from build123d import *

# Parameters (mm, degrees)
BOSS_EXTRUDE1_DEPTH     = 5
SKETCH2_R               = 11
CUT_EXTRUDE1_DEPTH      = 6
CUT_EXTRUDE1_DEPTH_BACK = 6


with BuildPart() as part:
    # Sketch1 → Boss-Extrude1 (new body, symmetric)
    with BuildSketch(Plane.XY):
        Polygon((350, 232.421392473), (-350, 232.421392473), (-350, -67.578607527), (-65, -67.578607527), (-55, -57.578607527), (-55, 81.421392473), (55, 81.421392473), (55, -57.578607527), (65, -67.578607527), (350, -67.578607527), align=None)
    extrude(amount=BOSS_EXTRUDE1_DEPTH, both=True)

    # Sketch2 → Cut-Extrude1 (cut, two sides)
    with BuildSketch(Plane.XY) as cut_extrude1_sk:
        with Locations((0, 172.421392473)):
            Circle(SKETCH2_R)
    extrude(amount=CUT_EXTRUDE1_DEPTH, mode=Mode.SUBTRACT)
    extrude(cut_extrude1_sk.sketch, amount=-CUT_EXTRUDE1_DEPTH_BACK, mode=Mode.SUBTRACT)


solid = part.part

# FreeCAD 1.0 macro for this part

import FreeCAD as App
import Part
import Sketcher
Q = App.Units.Quantity

doc = App.newDocument("Part")
body = doc.addObject("PartDesign::Body", "Body")

# Sketch on XY plane
sketch1 = body.newObject("Sketcher::SketchObject", "Sketch")
sketch1.AttachmentSupport = (doc.getObject("XY_Plane"), [""])
sketch1.MapMode = "FlatFace"
sketch1.addGeometry([
    Part.LineSegment(App.Vector(350, 232.421392, 0), App.Vector(-350, 232.421392, 0)),  # 0
    Part.LineSegment(App.Vector(-350, 232.421392, 0), App.Vector(-350, -67.578608, 0)),  # 1
    Part.LineSegment(App.Vector(-350, -67.578608, 0), App.Vector(-65, -67.578608, 0)),  # 2
    Part.LineSegment(App.Vector(-65, -67.578608, 0), App.Vector(-55, -57.578608, 0)),  # 3
    Part.LineSegment(App.Vector(-55, -57.578608, 0), App.Vector(-55, 81.421392, 0)),  # 4
    Part.LineSegment(App.Vector(-55, 81.421392, 0), App.Vector(55, 81.421392, 0)),  # 5
    Part.LineSegment(App.Vector(55, 81.421392, 0), App.Vector(55, -57.578608, 0)),  # 6
    Part.LineSegment(App.Vector(55, -57.578608, 0), App.Vector(65, -67.578608, 0)),  # 7
    Part.LineSegment(App.Vector(65, -67.578608, 0), App.Vector(350, -67.578608, 0)),  # 8
    Part.LineSegment(App.Vector(350, -67.578608, 0), App.Vector(350, 232.421392, 0)),  # 9
], False)
sketch1.addConstraint([
    Sketcher.Constraint("Coincident", 0, 2, 1, 1),
    Sketcher.Constraint("Coincident", 1, 2, 2, 1),
    Sketcher.Constraint("Coincident", 2, 2, 3, 1),
    Sketcher.Constraint("Coincident", 3, 2, 4, 1),
    Sketcher.Constraint("Coincident", 4, 2, 5, 1),
    Sketcher.Constraint("Coincident", 5, 2, 6, 1),
    Sketcher.Constraint("Coincident", 6, 2, 7, 1),
    Sketcher.Constraint("Coincident", 7, 2, 8, 1),
    Sketcher.Constraint("Coincident", 8, 2, 9, 1),
    Sketcher.Constraint("Coincident", 9, 2, 0, 1),
    Sketcher.Constraint("Horizontal", 0),
    Sketcher.Constraint("Vertical", 1),
    Sketcher.Constraint("Horizontal", 2),
    Sketcher.Constraint("Vertical", 4),
    Sketcher.Constraint("Horizontal", 5),
    Sketcher.Constraint("Vertical", 6),
    Sketcher.Constraint("Horizontal", 8),
    Sketcher.Constraint("Vertical", 9),
    Sketcher.Constraint("Symmetric", 3, 2, 6, 2, -2),
    Sketcher.Constraint("Symmetric", 2, 2, 7, 2, -2),
    Sketcher.Constraint("Perpendicular", 3, 7),
    Sketcher.Constraint("Equal", 2, 8),
    Sketcher.Constraint("DistanceX", 0, 2, 0, 1, Q("700 mm")),
    Sketcher.Constraint("DistanceX", 2, 1, 2, 2, Q("285 mm")),
    Sketcher.Constraint("DistanceX", 5, 1, 5, 2, Q("110 mm")),
    Sketcher.Constraint("DistanceY", 1, 2, 1, 1, Q("300 mm")),
    Sketcher.Constraint("DistanceY", 4, 1, 4, 2, Q("139 mm")),
    Sketcher.Constraint("DistanceY", -1, 1, 0, 2, Q("232.421392 mm")),
])
pad1 = body.newObject("PartDesign::Pad", "Pad")
pad1.Profile = sketch1
pad1.Length = 10
pad1.Midplane = True

# Sketch on XY plane
sketch2 = body.newObject("Sketcher::SketchObject", "Sketch001")
sketch2.AttachmentSupport = (doc.getObject("XY_Plane"), [""])
sketch2.MapMode = "FlatFace"
sketch2.addGeometry(Part.Circle(App.Vector(0, 172.421392, 0), App.Vector(0, 0, 1), 11), False)
sketch2.addConstraint([
    Sketcher.Constraint("PointOnObject", 0, 3, -2),
    Sketcher.Constraint("Diameter", 0, Q("22 mm")),
    Sketcher.Constraint("DistanceY", -1, 1, 0, 3, Q("172.421392 mm")),
])
pocket1 = body.newObject("PartDesign::Pocket", "Pocket")
pocket1.Profile = sketch2
pocket1.Type = "ThroughAll"
pocket1.Midplane = True

doc.recompute()
